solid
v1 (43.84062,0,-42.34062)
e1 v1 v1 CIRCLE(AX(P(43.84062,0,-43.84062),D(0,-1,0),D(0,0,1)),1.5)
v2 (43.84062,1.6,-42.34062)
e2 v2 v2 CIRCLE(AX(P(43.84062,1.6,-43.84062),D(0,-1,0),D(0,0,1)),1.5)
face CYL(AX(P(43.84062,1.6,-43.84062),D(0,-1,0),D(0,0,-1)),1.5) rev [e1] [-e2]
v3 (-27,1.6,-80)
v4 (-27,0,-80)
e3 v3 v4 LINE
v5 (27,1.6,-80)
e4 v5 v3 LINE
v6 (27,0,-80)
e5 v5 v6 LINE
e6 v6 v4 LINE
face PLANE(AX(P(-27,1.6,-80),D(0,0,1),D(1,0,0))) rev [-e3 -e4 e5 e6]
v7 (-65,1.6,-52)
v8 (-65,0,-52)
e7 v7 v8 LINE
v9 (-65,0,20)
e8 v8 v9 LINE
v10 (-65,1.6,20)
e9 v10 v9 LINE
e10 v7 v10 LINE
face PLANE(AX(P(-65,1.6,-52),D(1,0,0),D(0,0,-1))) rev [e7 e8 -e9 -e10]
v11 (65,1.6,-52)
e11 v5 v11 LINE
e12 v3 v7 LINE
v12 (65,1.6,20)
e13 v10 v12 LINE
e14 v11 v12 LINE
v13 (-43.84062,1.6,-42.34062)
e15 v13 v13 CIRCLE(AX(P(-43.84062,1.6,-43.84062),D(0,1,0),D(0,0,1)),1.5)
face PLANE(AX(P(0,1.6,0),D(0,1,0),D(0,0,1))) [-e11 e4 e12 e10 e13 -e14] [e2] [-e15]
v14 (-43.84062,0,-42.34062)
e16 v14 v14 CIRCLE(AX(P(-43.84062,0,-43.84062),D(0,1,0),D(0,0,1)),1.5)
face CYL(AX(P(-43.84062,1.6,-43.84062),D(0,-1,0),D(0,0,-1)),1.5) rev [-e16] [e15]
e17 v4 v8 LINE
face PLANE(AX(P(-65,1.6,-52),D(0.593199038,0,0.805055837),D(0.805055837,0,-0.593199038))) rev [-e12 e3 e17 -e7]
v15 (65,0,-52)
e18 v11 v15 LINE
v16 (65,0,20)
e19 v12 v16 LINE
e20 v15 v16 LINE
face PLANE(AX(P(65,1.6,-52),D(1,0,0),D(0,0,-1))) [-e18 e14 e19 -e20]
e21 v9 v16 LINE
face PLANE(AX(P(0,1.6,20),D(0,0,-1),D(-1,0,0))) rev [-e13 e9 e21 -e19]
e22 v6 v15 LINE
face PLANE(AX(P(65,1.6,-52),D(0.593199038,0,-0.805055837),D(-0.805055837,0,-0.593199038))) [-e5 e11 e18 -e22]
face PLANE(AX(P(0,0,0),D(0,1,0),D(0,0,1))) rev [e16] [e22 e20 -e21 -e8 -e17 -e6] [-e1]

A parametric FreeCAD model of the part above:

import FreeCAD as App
import Part
import Sketcher
from FreeCAD import Vector
Q = App.Units.Quantity


def add_polygon(sketch, points):
    """Adds a closed chain of lines whose ends are joined by coincident constraints."""
    first, n = sketch.GeometryCount, len(points)
    for a, b in zip(points, points[1:] + points[:1]):
        sketch.addGeometry(Part.LineSegment(App.Vector(*a, 0), App.Vector(*b, 0)), False)
    for i in range(n):
        sketch.addConstraint(Sketcher.Constraint("Coincident", first + i, 2, first + (i + 1) % n, 1))

doc = App.newDocument("Part")
params = doc.addObject("Spreadsheet::Sheet", "Params")
for row, (alias, value) in enumerate([
    ("sketch1_diameter", "3 mm"),
    ("sketch1_width", "65 mm"),
    ("sketch1_width2", "27 mm"),
    ("sketch1_height", "72 mm"),
    ("sketch1_height2", "100 mm"),
    ("pad1_length", "1.6 mm"),
], start=1):
    params.set(f"A{row}", alias)
    params.set(f"B{row}", "=" + value)
    params.setAlias(f"B{row}", alias)

body = doc.addObject("PartDesign::Body", "Body")

# Sketch on XZ plane
sketch1 = doc.addObject("Sketcher::SketchObject", "Sketch")
body.addObject(sketch1)
sketch1.AttachmentSupport = (doc.XZ_Plane, [""])
sketch1.MapMode = "FlatFace"
add_polygon(sketch1, [(-27, -80), (-65, -52), (-65, 20), (0, 20), (0, -80)])  # lines 0-4
sketch1.addGeometry(Part.Circle(Vector(-43.8, -43.8, 0), Vector(0, 0, 1), 1.5), False)  # 5
sketch1.addConstraint(Sketcher.Constraint("Vertical", 1))
sketch1.addConstraint(Sketcher.Constraint("Horizontal", 2))
sketch1.addConstraint(Sketcher.Constraint("Vertical", 3))
sketch1.addConstraint(Sketcher.Constraint("Horizontal", 4))
sketch1.addConstraint(Sketcher.Constraint("PointOnObject", 2, 2, -2))
sketch1.addConstraint(Sketcher.Constraint("Diameter", 5, Q("3 mm")))
sketch1.addConstraint(Sketcher.Constraint("DistanceX", 2, 1, 2, 2, Q("65 mm")))
sketch1.addConstraint(Sketcher.Constraint("DistanceX", 4, 2, 4, 1, Q("27 mm")))
sketch1.addConstraint(Sketcher.Constraint("DistanceY", 1, 1, 1, 2, Q("72 mm")))
sketch1.addConstraint(Sketcher.Constraint("DistanceY", 3, 2, 3, 1, Q("100 mm")))
sketch1.addConstraint(Sketcher.Constraint("DistanceY", 0, 2, -1, 1, Q("52 mm")))
sketch1.addConstraint(Sketcher.Constraint("DistanceX", 5, 3, -1, 1, Q("43.84062 mm")))
sketch1.addConstraint(Sketcher.Constraint("DistanceY", 5, 3, -1, 1, Q("43.84062 mm")))
sketch1.setExpression("Constraints[10]", "Params.sketch1_diameter")
sketch1.setExpression("Constraints[11]", "Params.sketch1_width")
sketch1.setExpression("Constraints[12]", "Params.sketch1_width2")
sketch1.setExpression("Constraints[13]", "Params.sketch1_height")
sketch1.setExpression("Constraints[14]", "Params.sketch1_height2")
pad1 = doc.addObject("PartDesign::Pad", "Pad")
body.addObject(pad1)
pad1.Profile = sketch1
pad1.setExpression("Length", "Params.pad1_length")
pad1.Reversed = True
doc.recompute()

mirrored = doc.addObject("PartDesign::Mirrored", "Mirrored")
body.addObject(mirrored)
mirrored.Originals = [pad1]
mirrored.MirrorPlane = (doc.YZ_Plane, [""])
body.Tip = mirrored

doc.recompute()
